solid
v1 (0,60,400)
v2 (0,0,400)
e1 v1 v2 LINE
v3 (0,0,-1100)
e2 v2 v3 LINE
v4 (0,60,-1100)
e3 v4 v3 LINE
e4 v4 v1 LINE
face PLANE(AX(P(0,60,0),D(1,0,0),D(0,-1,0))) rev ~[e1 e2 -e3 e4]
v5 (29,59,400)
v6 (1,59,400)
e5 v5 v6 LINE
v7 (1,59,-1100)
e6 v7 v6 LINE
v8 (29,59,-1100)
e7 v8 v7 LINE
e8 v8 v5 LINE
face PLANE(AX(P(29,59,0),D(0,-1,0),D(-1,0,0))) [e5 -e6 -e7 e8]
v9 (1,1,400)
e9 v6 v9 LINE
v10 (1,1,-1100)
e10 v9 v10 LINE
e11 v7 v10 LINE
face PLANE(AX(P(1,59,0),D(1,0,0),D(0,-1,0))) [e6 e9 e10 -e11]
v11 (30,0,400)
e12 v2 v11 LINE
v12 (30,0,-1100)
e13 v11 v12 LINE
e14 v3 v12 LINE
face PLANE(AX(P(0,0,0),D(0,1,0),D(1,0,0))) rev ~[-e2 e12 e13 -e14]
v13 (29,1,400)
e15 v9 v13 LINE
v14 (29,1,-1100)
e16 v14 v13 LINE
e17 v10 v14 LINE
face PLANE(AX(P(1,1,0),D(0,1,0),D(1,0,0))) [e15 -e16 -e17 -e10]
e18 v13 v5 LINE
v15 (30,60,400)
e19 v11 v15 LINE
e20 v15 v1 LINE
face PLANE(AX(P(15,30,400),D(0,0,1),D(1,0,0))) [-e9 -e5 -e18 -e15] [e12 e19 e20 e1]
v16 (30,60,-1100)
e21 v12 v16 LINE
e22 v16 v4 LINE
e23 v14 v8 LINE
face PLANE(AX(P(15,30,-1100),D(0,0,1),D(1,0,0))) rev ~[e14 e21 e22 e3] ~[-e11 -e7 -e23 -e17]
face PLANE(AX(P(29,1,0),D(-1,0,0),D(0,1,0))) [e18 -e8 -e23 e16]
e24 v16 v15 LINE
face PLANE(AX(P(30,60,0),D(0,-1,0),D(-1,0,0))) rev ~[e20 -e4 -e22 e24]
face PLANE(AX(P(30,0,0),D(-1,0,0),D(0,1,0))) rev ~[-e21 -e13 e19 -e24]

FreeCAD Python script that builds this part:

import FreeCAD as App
import Part
import Sketcher

V = App.Vector
Q = App.Units.Quantity


def add_polygon(sketch, points):
    """Adds a closed chain of lines whose ends are joined by coincident constraints."""
    first, n = sketch.GeometryCount, len(points)
    for a, b in zip(points, points[1:] + points[:1]):
        sketch.addGeometry(Part.LineSegment(App.Vector(*a, 0), App.Vector(*b, 0)), False)
    for i in range(n):
        sketch.addConstraint(Sketcher.Constraint("Coincident", first + i, 2, first + (i + 1) % n, 1))

doc = App.newDocument("Part")
body = doc.addObject("PartDesign::Body", "Body")

# Sketch on XY plane
sketch1 = doc.addObject("Sketcher::SketchObject", "Sketch")
body.addObject(sketch1)
sketch1.AttachmentSupport = (doc.XY_Plane, [""])
sketch1.MapMode = "FlatFace"
add_polygon(sketch1, [(0, 0), (30, 0), (30, 60), (0, 60)])  # lines 0-3
add_polygon(sketch1, [(29, 59), (29, 1), (1, 1), (1, 59)])  # lines 4-7
sketch1.addConstraint([
    Sketcher.Constraint("Horizontal", 0),
    Sketcher.Constraint("Vertical", 1),
    Sketcher.Constraint("Horizontal", 2),
    Sketcher.Constraint("Vertical", 3),
    Sketcher.Constraint("Vertical", 4),
    Sketcher.Constraint("Horizontal", 5),
    Sketcher.Constraint("Vertical", 6),
    Sketcher.Constraint("Horizontal", 7),
    Sketcher.Constraint("Coincident", 3, 2, -1, 1),
    Sketcher.Constraint("DistanceX", 0, 1, 0, 2, Q("30 mm")),
    Sketcher.Constraint("DistanceX", 5, 2, 5, 1, Q("28 mm")),
    Sketcher.Constraint("DistanceY", 1, 1, 1, 2, Q("60 mm")),
    Sketcher.Constraint("DistanceY", 4, 2, 4, 1, Q("58 mm")),
    Sketcher.Constraint("DistanceX", -1, 1, 4, 2, Q("29 mm")),
    Sketcher.Constraint("DistanceY", -1, 1, 4, 2, Q("1 mm")),
])
pad1 = doc.addObject("PartDesign::Pad", "Pad")
body.addObject(pad1)
pad1.Profile = sketch1
pad1.Length = 400

# Sketch on XY plane
sketch2 = doc.addObject("Sketcher::SketchObject", "Sketch001")
body.addObject(sketch2)
sketch2.AttachmentSupport = (doc.XY_Plane, [""])
sketch2.MapMode = "FlatFace"
add_polygon(sketch2, [(0, 0), (30, 0), (30, 60), (0, 60)])  # lines 0-3
add_polygon(sketch2, [(29, 59), (29, 1), (1, 1), (1, 59)])  # lines 4-7
sketch2.addConstraint([
    Sketcher.Constraint("Horizontal", 0),
    Sketcher.Constraint("Vertical", 1),
    Sketcher.Constraint("Horizontal", 2),
    Sketcher.Constraint("Vertical", 3),
    Sketcher.Constraint("Vertical", 4),
    Sketcher.Constraint("Horizontal", 5),
    Sketcher.Constraint("Vertical", 6),
    Sketcher.Constraint("Horizontal", 7),
    Sketcher.Constraint("Coincident", 3, 2, -1, 1),
    Sketcher.Constraint("DistanceX", 0, 1, 0, 2, Q("30 mm")),
    Sketcher.Constraint("DistanceX", 5, 2, 5, 1, Q("28 mm")),
    Sketcher.Constraint("DistanceY", 1, 1, 1, 2, Q("60 mm")),
    Sketcher.Constraint("DistanceY", 4, 2, 4, 1, Q("58 mm")),
    Sketcher.Constraint("DistanceX", -1, 1, 4, 2, Q("29 mm")),
    Sketcher.Constraint("DistanceY", -1, 1, 4, 2, Q("1 mm")),
])
pad2 = doc.addObject("PartDesign::Pad", "Pad001")
body.addObject(pad2)
pad2.Profile = sketch2
pad2.Length = 1100
pad2.Reversed = True

doc.recompute()
